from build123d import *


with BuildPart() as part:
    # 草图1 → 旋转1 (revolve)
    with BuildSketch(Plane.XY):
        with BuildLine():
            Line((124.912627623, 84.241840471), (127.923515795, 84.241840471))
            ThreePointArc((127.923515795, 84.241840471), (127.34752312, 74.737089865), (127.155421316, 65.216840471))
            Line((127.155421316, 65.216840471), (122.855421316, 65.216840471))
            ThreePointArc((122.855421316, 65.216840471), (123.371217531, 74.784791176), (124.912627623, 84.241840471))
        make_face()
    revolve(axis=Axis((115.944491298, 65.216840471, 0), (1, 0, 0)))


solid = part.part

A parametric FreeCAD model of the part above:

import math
import FreeCAD as App
import Part
import Sketcher
from FreeCAD import Vector

doc = App.newDocument("Part")
body = doc.addObject("PartDesign::Body", "Body")

# Sketch on XY plane
sketch1 = body.newObject("Sketcher::SketchObject", "Sketch")
sketch1.AttachmentSupport = (doc.getObject("XY_Plane"), [""])
sketch1.MapMode = "FlatFace"
sketch1.addGeometry([
    Part.LineSegment(Vector(127.9, 84.2, 0), Vector(124.9, 84.2, 0)),
    Part.ArcOfCircle(Part.Circle(Vector(211.9, 65.2, 0), Vector(0, 0, 1), 89), math.radians(167.66), math.radians(180)),
    Part.LineSegment(Vector(122.9, 65.2, 0), Vector(127.2, 65.2, 0)),
    Part.ArcOfCircle(Part.Circle(Vector(363.2, 65.2, 0), Vector(0, 0, 1), 236), math.radians(175.38), math.radians(180)),
], False)
sketch1.addGeometry(Part.LineSegment(Vector(122.9, 65.2, 0), Vector(363.2, 65.2, 0)), True)  # axis
sketch1.addConstraint([
    Sketcher.Constraint("Coincident", 0, 2, 1, 1),
    Sketcher.Constraint("Coincident", 1, 2, 2, 1),
    Sketcher.Constraint("Coincident", 2, 2, 3, 2),
    Sketcher.Constraint("Coincident", 3, 1, 0, 1),
    Sketcher.Constraint("Horizontal", 0),
    Sketcher.Constraint("Horizontal", 2),
    Sketcher.Constraint("Horizontal", 4),
    Sketcher.Constraint("Coincident", 4, 1, 1, 2),
    Sketcher.Constraint("Coincident", 4, 2, 3, 3),
    Sketcher.Constraint("Horizontal", 1, 3, 3, 3),
    Sketcher.Constraint("Radius", 1, 89.0),
    Sketcher.Constraint("Radius", 3, 236.0),
    Sketcher.Constraint("DistanceX", 2, 1, 2, 2, 4.3),
    Sketcher.Constraint("DistanceY", 1, 3, 0, 2, 19.025),
    Sketcher.Constraint("DistanceX", -1, 1, 1, 3, 211.855421),
    Sketcher.Constraint("DistanceY", -1, 1, 1, 3, 65.21684),
])
revolution = body.newObject("PartDesign::Revolution", "Revolution")
revolution.Profile = sketch1
revolution.ReferenceAxis = (sketch1, ["Axis0"])
revolution.Angle = 360

doc.recompute()
